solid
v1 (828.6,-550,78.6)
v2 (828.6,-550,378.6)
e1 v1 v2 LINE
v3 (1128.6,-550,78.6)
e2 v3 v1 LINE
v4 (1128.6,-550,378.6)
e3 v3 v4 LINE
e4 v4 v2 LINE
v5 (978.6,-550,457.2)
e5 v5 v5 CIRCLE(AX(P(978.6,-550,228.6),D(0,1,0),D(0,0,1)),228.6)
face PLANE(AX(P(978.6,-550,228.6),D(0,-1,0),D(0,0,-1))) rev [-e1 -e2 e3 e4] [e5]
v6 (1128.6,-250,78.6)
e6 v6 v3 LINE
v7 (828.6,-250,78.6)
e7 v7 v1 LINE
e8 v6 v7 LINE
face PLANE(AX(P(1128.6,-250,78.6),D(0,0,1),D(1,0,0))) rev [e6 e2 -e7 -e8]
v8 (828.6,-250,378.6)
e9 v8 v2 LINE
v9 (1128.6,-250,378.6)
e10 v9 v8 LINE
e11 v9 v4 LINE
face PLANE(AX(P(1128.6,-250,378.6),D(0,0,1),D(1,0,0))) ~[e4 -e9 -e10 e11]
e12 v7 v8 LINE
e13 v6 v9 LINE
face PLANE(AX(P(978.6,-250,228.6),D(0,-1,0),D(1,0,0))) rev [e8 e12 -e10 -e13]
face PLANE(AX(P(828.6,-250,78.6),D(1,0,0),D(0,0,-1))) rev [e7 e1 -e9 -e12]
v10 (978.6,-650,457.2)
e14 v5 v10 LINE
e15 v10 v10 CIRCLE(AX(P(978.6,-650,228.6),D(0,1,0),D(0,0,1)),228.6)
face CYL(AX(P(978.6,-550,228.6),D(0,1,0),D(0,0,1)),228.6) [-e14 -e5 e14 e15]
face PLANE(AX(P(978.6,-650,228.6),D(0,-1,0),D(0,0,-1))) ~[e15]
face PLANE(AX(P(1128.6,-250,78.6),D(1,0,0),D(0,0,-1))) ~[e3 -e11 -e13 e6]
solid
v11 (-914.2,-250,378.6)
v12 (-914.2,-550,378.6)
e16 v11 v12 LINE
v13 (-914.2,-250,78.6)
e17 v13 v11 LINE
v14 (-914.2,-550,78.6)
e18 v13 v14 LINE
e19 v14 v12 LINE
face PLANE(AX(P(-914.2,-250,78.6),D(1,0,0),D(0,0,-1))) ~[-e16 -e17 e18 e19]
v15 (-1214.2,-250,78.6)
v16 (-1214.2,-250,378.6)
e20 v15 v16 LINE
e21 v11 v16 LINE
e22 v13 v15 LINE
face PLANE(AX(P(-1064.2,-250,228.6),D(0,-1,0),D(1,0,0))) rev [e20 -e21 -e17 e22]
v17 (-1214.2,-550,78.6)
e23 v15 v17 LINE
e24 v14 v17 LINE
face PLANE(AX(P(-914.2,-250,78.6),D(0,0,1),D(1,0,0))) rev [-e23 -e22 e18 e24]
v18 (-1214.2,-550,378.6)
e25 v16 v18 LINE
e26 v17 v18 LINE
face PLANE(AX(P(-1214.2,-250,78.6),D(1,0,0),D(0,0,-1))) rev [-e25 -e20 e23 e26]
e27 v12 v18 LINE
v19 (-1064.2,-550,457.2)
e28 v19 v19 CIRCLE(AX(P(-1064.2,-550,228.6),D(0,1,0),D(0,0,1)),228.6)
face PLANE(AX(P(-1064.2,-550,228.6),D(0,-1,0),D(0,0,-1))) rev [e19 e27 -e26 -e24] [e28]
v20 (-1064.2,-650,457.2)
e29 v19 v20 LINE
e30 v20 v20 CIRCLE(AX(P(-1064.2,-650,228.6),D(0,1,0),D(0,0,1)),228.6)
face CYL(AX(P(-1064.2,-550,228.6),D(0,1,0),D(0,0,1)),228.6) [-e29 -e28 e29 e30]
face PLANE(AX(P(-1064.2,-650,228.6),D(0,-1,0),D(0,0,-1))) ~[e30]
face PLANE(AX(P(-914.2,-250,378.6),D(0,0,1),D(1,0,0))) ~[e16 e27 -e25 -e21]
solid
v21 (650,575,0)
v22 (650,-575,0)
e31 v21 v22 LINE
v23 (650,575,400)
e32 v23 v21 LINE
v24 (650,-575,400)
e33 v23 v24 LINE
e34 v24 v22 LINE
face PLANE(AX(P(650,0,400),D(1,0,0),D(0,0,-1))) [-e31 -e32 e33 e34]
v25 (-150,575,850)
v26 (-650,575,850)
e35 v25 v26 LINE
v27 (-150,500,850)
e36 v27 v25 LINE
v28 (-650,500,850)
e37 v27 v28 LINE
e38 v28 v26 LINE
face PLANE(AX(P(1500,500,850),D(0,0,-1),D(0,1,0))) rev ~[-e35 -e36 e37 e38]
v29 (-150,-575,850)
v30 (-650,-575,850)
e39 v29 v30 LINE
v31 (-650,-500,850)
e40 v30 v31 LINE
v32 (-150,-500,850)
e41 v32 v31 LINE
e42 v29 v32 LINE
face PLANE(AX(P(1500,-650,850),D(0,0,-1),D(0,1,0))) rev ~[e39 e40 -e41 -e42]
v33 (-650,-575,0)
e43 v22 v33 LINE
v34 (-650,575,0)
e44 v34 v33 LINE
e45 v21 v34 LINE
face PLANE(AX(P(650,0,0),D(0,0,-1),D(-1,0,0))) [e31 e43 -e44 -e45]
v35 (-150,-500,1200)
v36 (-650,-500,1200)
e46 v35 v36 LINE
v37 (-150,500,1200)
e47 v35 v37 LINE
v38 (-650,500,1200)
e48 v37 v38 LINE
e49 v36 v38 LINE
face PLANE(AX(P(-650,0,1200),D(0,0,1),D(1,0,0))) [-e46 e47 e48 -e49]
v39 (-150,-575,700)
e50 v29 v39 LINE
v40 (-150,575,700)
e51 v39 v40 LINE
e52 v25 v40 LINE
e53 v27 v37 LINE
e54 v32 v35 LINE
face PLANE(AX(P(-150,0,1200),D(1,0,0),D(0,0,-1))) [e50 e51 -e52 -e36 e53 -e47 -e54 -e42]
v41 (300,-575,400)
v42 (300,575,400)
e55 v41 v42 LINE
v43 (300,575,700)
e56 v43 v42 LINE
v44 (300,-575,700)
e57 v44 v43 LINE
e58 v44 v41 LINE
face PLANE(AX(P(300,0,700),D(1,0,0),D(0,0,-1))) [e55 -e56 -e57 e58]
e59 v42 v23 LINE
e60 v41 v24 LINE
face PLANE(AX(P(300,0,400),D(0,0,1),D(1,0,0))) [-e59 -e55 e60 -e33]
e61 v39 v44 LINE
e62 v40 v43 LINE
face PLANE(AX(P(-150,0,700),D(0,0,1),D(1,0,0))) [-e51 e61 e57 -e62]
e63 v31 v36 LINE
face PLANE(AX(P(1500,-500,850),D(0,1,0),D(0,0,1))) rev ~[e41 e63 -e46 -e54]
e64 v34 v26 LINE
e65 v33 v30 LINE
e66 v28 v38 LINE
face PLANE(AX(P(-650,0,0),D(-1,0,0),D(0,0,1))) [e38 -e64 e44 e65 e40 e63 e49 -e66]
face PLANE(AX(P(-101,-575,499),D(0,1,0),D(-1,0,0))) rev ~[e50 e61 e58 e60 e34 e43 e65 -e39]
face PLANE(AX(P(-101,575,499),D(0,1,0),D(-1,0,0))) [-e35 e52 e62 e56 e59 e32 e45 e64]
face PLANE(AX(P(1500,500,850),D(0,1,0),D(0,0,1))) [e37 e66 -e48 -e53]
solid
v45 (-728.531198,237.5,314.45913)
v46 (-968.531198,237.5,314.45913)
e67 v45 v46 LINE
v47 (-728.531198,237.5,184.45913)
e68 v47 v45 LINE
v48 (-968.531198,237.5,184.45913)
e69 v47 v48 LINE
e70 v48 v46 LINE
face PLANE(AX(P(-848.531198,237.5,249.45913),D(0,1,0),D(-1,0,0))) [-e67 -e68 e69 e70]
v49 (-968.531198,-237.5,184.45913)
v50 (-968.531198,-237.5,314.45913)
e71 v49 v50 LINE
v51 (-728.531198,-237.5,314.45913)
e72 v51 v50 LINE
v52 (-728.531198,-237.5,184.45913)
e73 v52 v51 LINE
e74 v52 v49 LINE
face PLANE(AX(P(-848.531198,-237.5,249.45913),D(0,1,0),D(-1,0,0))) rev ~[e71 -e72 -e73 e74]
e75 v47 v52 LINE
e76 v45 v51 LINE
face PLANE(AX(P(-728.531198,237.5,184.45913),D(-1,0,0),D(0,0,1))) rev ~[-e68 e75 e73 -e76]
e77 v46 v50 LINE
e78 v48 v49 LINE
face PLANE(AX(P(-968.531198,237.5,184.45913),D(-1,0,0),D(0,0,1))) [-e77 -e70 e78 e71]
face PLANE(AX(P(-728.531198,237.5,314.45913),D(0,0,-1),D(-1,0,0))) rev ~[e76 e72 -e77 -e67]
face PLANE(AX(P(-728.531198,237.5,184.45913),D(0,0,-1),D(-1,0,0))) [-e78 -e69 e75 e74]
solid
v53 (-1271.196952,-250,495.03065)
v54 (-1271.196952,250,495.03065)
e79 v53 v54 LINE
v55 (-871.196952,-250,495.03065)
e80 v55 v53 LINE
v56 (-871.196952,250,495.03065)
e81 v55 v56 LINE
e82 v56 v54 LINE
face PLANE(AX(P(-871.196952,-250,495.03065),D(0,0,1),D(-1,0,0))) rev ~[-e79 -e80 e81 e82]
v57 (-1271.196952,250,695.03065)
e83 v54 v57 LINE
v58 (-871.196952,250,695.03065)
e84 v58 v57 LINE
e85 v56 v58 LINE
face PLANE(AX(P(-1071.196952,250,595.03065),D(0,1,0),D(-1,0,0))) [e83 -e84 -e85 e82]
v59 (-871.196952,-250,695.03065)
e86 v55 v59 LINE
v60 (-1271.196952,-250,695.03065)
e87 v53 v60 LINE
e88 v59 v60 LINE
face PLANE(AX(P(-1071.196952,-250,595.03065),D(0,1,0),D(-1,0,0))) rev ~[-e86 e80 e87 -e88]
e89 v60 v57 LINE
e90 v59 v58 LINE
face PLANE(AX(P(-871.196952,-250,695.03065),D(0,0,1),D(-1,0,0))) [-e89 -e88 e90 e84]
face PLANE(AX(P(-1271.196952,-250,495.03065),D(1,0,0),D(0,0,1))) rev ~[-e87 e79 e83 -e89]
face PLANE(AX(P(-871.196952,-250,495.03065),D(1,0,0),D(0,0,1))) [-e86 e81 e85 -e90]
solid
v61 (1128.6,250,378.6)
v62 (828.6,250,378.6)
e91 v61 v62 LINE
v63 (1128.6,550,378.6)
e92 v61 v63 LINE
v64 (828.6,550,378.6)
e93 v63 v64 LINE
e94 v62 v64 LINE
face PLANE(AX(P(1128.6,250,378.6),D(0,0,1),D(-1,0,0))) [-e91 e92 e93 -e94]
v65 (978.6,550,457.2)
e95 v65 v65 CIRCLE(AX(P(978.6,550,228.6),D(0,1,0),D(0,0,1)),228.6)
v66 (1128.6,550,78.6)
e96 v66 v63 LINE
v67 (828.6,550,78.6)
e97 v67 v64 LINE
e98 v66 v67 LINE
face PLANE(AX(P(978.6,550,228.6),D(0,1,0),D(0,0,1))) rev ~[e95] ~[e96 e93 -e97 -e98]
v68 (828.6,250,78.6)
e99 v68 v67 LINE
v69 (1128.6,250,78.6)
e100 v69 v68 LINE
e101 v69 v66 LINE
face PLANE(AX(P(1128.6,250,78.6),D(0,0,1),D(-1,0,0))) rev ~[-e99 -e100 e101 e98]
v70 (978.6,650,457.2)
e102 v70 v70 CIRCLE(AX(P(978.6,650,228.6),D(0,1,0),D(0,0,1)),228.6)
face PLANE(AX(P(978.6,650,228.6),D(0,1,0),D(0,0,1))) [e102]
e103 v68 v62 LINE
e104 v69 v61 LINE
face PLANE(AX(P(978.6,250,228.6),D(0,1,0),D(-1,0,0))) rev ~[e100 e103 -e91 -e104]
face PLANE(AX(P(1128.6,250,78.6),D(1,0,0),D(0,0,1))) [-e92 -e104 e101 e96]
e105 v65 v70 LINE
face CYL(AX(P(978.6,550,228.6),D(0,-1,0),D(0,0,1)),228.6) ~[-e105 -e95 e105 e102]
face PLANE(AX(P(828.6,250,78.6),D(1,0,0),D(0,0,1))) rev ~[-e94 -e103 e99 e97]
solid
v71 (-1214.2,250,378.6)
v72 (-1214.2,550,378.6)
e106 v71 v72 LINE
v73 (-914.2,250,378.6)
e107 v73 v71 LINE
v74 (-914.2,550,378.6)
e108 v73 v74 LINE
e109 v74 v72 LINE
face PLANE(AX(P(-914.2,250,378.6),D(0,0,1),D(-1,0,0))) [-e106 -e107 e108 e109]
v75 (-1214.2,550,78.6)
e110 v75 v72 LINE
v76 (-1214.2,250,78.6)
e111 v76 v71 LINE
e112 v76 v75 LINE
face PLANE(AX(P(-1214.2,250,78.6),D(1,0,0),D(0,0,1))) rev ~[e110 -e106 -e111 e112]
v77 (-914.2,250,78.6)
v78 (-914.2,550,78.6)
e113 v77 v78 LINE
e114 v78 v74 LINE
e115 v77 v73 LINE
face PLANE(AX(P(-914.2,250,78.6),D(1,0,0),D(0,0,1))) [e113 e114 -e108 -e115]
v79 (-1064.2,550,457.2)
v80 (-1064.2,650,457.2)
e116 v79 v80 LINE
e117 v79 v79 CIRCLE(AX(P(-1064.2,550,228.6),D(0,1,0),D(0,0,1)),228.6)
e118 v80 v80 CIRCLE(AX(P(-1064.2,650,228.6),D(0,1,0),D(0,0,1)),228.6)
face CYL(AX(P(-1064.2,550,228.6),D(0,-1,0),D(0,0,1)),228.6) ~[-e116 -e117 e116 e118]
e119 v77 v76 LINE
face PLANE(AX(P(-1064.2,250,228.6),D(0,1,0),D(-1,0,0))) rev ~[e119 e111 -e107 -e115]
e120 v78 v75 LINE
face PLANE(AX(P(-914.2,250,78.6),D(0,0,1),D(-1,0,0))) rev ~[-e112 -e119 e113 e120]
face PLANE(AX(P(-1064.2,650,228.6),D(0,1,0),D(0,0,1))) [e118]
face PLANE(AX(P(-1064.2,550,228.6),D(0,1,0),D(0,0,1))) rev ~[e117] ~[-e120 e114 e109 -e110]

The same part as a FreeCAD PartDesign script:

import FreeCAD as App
import Part
import Sketcher
from FreeCAD import Vector

doc = App.newDocument("Part")
body = doc.addObject("PartDesign::Body", "Body")

# Sketch on XZ plane
sketch1 = body.newObject("Sketcher::SketchObject", "Sketch")
sketch1.AttachmentSupport = (doc.getObject("XZ_Plane"), [""])
sketch1.MapMode = "FlatFace"
sketch1.AttachmentOffset = App.Placement(Vector(0, 0, -550), App.Rotation())
sketch1.addGeometry(Part.Circle(Vector(979, 229, 0), Vector(0, 0, 1), 229), False)
sketch1.addConstraint([
    Sketcher.Constraint("Diameter", 0, 457.2),
    Sketcher.Constraint("DistanceX", -1, 1, 0, 3, 978.6),
    Sketcher.Constraint("DistanceY", -1, 1, 0, 3, 228.6),
])
pad1 = body.newObject("PartDesign::Pad", "Pad")
pad1.Profile = sketch1
pad1.Length = 100
pad1.Reversed = True

# Sketch on XZ plane
sketch2 = body.newObject("Sketcher::SketchObject", "Sketch001")
sketch2.AttachmentSupport = (doc.getObject("XZ_Plane"), [""])
sketch2.MapMode = "FlatFace"
sketch2.AttachmentOffset = App.Placement(Vector(0, 0, -250), App.Rotation())
sketch2.addGeometry([
    Part.LineSegment(Vector(1129, 379, 0), Vector(1129, 79, 0)),
    Part.LineSegment(Vector(1129, 79, 0), Vector(829, 79, 0)),
    Part.LineSegment(Vector(829, 79, 0), Vector(829, 379, 0)),
    Part.LineSegment(Vector(829, 379, 0), Vector(1129, 379, 0)),
], False)
sketch2.addConstraint([
    Sketcher.Constraint("Coincident", 0, 2, 1, 1),
    Sketcher.Constraint("Coincident", 1, 2, 2, 1),
    Sketcher.Constraint("Coincident", 2, 2, 3, 1),
    Sketcher.Constraint("Coincident", 3, 2, 0, 1),
    Sketcher.Constraint("Vertical", 0),
    Sketcher.Constraint("Horizontal", 1),
    Sketcher.Constraint("Vertical", 2),
    Sketcher.Constraint("Horizontal", 3),
    Sketcher.Constraint("Equal", 3, 0),
    Sketcher.Constraint("DistanceX", 1, 2, 1, 1, 300.0),
    Sketcher.Constraint("DistanceX", -1, 1, 0, 2, 1128.6),
    Sketcher.Constraint("DistanceY", -1, 1, 0, 2, 78.6),
])
pad2 = body.newObject("PartDesign::Pad", "Pad001")
pad2.Profile = sketch2
pad2.Length = 300
pad2.Reversed = True
body2 = doc.addObject("PartDesign::Body", "Body001")

# Sketch on XZ plane
sketch3 = body2.newObject("Sketcher::SketchObject", "Sketch002")
sketch3.AttachmentSupport = (doc.getObject("XZ_Plane001"), [""])
sketch3.MapMode = "FlatFace"
sketch3.AttachmentOffset = App.Placement(Vector(0, 0, -237.5), App.Rotation())
sketch3.addGeometry([
    Part.LineSegment(Vector(-729, 314, 0), Vector(-729, 184, 0)),
    Part.LineSegment(Vector(-729, 184, 0), Vector(-969, 184, 0)),
    Part.LineSegment(Vector(-969, 184, 0), Vector(-969, 314, 0)),
    Part.LineSegment(Vector(-969, 314, 0), Vector(-729, 314, 0)),
], False)
sketch3.addConstraint([
    Sketcher.Constraint("Coincident", 0, 2, 1, 1),
    Sketcher.Constraint("Coincident", 1, 2, 2, 1),
    Sketcher.Constraint("Coincident", 2, 2, 3, 1),
    Sketcher.Constraint("Coincident", 3, 2, 0, 1),
    Sketcher.Constraint("Vertical", 0),
    Sketcher.Constraint("Horizontal", 1),
    Sketcher.Constraint("Vertical", 2),
    Sketcher.Constraint("Horizontal", 3),
    Sketcher.Constraint("DistanceX", 1, 2, 1, 1, 240.0),
    Sketcher.Constraint("DistanceY", 0, 2, 0, 1, 130.0),
    Sketcher.Constraint("DistanceX", 0, 2, -1, 1, 728.531198),
    Sketcher.Constraint("DistanceY", -1, 1, 0, 2, 184.45913),
])
pad3 = body2.newObject("PartDesign::Pad", "Pad002")
pad3.Profile = sketch3
pad3.Length = 475
body3 = doc.addObject("PartDesign::Body", "Body002")

# Sketch on XZ plane
sketch4 = body3.newObject("Sketcher::SketchObject", "Sketch003")
sketch4.AttachmentSupport = (doc.getObject("XZ_Plane002"), [""])
sketch4.MapMode = "FlatFace"
sketch4.addGeometry([
    Part.LineSegment(Vector(-650, 0, 0), Vector(-650, 1200, 0)),  # 0
    Part.LineSegment(Vector(-650, 1200, 0), Vector(-150, 1200, 0)),  # 1
    Part.LineSegment(Vector(-150, 1200, 0), Vector(-150, 700, 0)),  # 2
    Part.LineSegment(Vector(-150, 700, 0), Vector(300, 700, 0)),  # 3
    Part.LineSegment(Vector(300, 700, 0), Vector(300, 400, 0)),  # 4
    Part.LineSegment(Vector(300, 400, 0), Vector(650, 400, 0)),  # 5
    Part.LineSegment(Vector(650, 400, 0), Vector(650, 0, 0)),  # 6
    Part.LineSegment(Vector(650, 0, 0), Vector(-650, 0, 0)),  # 7
], False)
sketch4.addConstraint([
    Sketcher.Constraint("Coincident", 0, 2, 1, 1),
    Sketcher.Constraint("Coincident", 1, 2, 2, 1),
    Sketcher.Constraint("Coincident", 2, 2, 3, 1),
    Sketcher.Constraint("Coincident", 3, 2, 4, 1),
    Sketcher.Constraint("Coincident", 4, 2, 5, 1),
    Sketcher.Constraint("Coincident", 5, 2, 6, 1),
    Sketcher.Constraint("Coincident", 6, 2, 7, 1),
    Sketcher.Constraint("Coincident", 7, 2, 0, 1),
    Sketcher.Constraint("Vertical", 0),
    Sketcher.Constraint("Horizontal", 1),
    Sketcher.Constraint("Vertical", 2),
    Sketcher.Constraint("Horizontal", 3),
    Sketcher.Constraint("Vertical", 4),
    Sketcher.Constraint("Horizontal", 5),
    Sketcher.Constraint("Vertical", 6),
    Sketcher.Constraint("Horizontal", 7),
    Sketcher.Constraint("Symmetric", 6, 2, 7, 2, -1, 1),
    Sketcher.Constraint("Equal", 1, 2),
    Sketcher.Constraint("DistanceX", 1, 1, 1, 2, 500.0),
    Sketcher.Constraint("DistanceX", 3, 1, 3, 2, 450.0),
    Sketcher.Constraint("DistanceX", 5, 1, 5, 2, 350.0),
    Sketcher.Constraint("DistanceY", 0, 1, 0, 2, 1200.0),
    Sketcher.Constraint("DistanceY", 4, 2, 4, 1, 300.0),
])
pad4 = body3.newObject("PartDesign::Pad", "Pad003")
pad4.Profile = sketch4
pad4.Length = 1150
pad4.Midplane = True

# Sketch on YZ plane
sketch5 = body3.newObject("Sketcher::SketchObject", "Sketch004")
sketch5.AttachmentSupport = (doc.getObject("YZ_Plane002"), [""])
sketch5.MapMode = "FlatFace"
sketch5.AttachmentOffset = App.Placement(Vector(0, 0, 1500), App.Rotation())
sketch5.addGeometry([
    Part.LineSegment(Vector(-650, 1200, 0), Vector(-650, 850, 0)),  # 0
    Part.LineSegment(Vector(-650, 850, 0), Vector(-500, 850, 0)),  # 1
    Part.LineSegment(Vector(-500, 850, 0), Vector(-500, 1200, 0)),  # 2
    Part.LineSegment(Vector(-500, 1200, 0), Vector(-650, 1200, 0)),  # 3
    Part.LineSegment(Vector(500, 1200, 0), Vector(500, 850, 0)),  # 4
    Part.LineSegment(Vector(500, 850, 0), Vector(650, 850, 0)),  # 5
    Part.LineSegment(Vector(650, 850, 0), Vector(650, 1200, 0)),  # 6
    Part.LineSegment(Vector(650, 1200, 0), Vector(500, 1200, 0)),  # 7
], False)
sketch5.addConstraint([
    Sketcher.Constraint("Coincident", 0, 2, 1, 1),
    Sketcher.Constraint("Coincident", 1, 2, 2, 1),
    Sketcher.Constraint("Coincident", 2, 2, 3, 1),
    Sketcher.Constraint("Coincident", 3, 2, 0, 1),
    Sketcher.Constraint("Coincident", 4, 2, 5, 1),
    Sketcher.Constraint("Coincident", 5, 2, 6, 1),
    Sketcher.Constraint("Coincident", 6, 2, 7, 1),
    Sketcher.Constraint("Coincident", 7, 2, 4, 1),
    Sketcher.Constraint("Vertical", 0),
    Sketcher.Constraint("Horizontal", 1),
    Sketcher.Constraint("Vertical", 2),
    Sketcher.Constraint("Horizontal", 3),
    Sketcher.Constraint("Vertical", 4),
    Sketcher.Constraint("Horizontal", 5),
    Sketcher.Constraint("Vertical", 6),
    Sketcher.Constraint("Horizontal", 7),
    Sketcher.Constraint("Symmetric", 1, 2, 4, 2, -2),
    Sketcher.Constraint("Symmetric", 3, 2, 6, 2, -2),
    Sketcher.Constraint("DistanceX", 1, 1, 1, 2, 150.0),
    Sketcher.Constraint("DistanceY", 0, 2, 0, 1, 350.0),
    Sketcher.Constraint("DistanceX", 0, 2, -1, 1, 650.0),
    Sketcher.Constraint("DistanceY", -1, 1, 0, 2, 850.0),
])
pocket1 = body3.newObject("PartDesign::Pocket", "Pocket")
pocket1.Profile = sketch5
pocket1.Length = 2150
body4 = doc.addObject("PartDesign::Body", "Body003")

# Sketch on XZ plane
sketch6 = body4.newObject("Sketcher::SketchObject", "Sketch005")
sketch6.AttachmentSupport = (doc.getObject("XZ_Plane003"), [""])
sketch6.MapMode = "FlatFace"
sketch6.AttachmentOffset = App.Placement(Vector(0, 0, -250), App.Rotation())
sketch6.addGeometry([
    Part.LineSegment(Vector(-914, 379, 0), Vector(-914, 79, 0)),
    Part.LineSegment(Vector(-914, 79, 0), Vector(-1214, 79, 0)),
    Part.LineSegment(Vector(-1214, 79, 0), Vector(-1214, 379, 0)),
    Part.LineSegment(Vector(-1214, 379, 0), Vector(-914, 379, 0)),
], False)
sketch6.addConstraint([
    Sketcher.Constraint("Coincident", 0, 2, 1, 1),
    Sketcher.Constraint("Coincident", 1, 2, 2, 1),
    Sketcher.Constraint("Coincident", 2, 2, 3, 1),
    Sketcher.Constraint("Coincident", 3, 2, 0, 1),
    Sketcher.Constraint("Vertical", 0),
    Sketcher.Constraint("Horizontal", 1),
    Sketcher.Constraint("Vertical", 2),
    Sketcher.Constraint("Horizontal", 3),
    Sketcher.Constraint("Equal", 3, 0),
    Sketcher.Constraint("DistanceX", 1, 2, 1, 1, 300.0),
    Sketcher.Constraint("DistanceX", 0, 2, -1, 1, 914.2),
    Sketcher.Constraint("DistanceY", -1, 1, 0, 2, 78.6),
])
pad5 = body4.newObject("PartDesign::Pad", "Pad004")
pad5.Profile = sketch6
pad5.Length = 300
pad5.Reversed = True

# Sketch on XZ plane
sketch7 = body4.newObject("Sketcher::SketchObject", "Sketch006")
sketch7.AttachmentSupport = (doc.getObject("XZ_Plane003"), [""])
sketch7.MapMode = "FlatFace"
sketch7.AttachmentOffset = App.Placement(Vector(0, 0, -550), App.Rotation())
sketch7.addGeometry(Part.Circle(Vector(-1064, 229, 0), Vector(0, 0, 1), 229), False)
sketch7.addConstraint([
    Sketcher.Constraint("Diameter", 0, 457.2),
    Sketcher.Constraint("DistanceX", 0, 3, -1, 1, 1064.2),
    Sketcher.Constraint("DistanceY", -1, 1, 0, 3, 228.6),
])
pad6 = body4.newObject("PartDesign::Pad", "Pad005")
pad6.Profile = sketch7
pad6.Length = 100
pad6.Reversed = True
body5 = doc.addObject("PartDesign::Body", "Body004")

# Sketch on XZ plane
sketch8 = body5.newObject("Sketcher::SketchObject", "Sketch007")
sketch8.AttachmentSupport = (doc.getObject("XZ_Plane004"), [""])
sketch8.MapMode = "FlatFace"
sketch8.AttachmentOffset = App.Placement(Vector(0, 0, 250), App.Rotation())
sketch8.addGeometry([
    Part.LineSegment(Vector(-871, 695, 0), Vector(-871, 495, 0)),
    Part.LineSegment(Vector(-871, 495, 0), Vector(-1271, 495, 0)),
    Part.LineSegment(Vector(-1271, 495, 0), Vector(-1271, 695, 0)),
    Part.LineSegment(Vector(-1271, 695, 0), Vector(-871, 695, 0)),
], False)
sketch8.addConstraint([
    Sketcher.Constraint("Coincident", 0, 2, 1, 1),
    Sketcher.Constraint("Coincident", 1, 2, 2, 1),
    Sketcher.Constraint("Coincident", 2, 2, 3, 1),
    Sketcher.Constraint("Coincident", 3, 2, 0, 1),
    Sketcher.Constraint("Vertical", 0),
    Sketcher.Constraint("Horizontal", 1),
    Sketcher.Constraint("Vertical", 2),
    Sketcher.Constraint("Horizontal", 3),
    Sketcher.Constraint("DistanceX", 1, 2, 1, 1, 400.0),
    Sketcher.Constraint("DistanceY", 0, 2, 0, 1, 200.0),
    Sketcher.Constraint("DistanceX", 0, 2, -1, 1, 871.196952),
    Sketcher.Constraint("DistanceY", -1, 1, 0, 2, 495.03065),
])
pad7 = body5.newObject("PartDesign::Pad", "Pad006")
pad7.Profile = sketch8
pad7.Length = 500
pad7.Reversed = True
body6 = doc.addObject("PartDesign::Body", "Body005")
doc.recompute()

mirroring = doc.addObject("Part::Mirroring", "Mirroring")
mirroring.Source = body
mirroring.Base = Vector(0, 0, 0)
mirroring.Normal = Vector(0, 1, 0)
body6.BaseFeature = mirroring
doc.recompute()
body7 = doc.addObject("PartDesign::Body", "Body006")
doc.recompute()

mirroring2 = doc.addObject("Part::Mirroring", "Mirroring001")
mirroring2.Source = body4
mirroring2.Base = Vector(0, 0, 0)
mirroring2.Normal = Vector(0, 1, 0)
body7.BaseFeature = mirroring2
doc.recompute()
mirroring.Visibility = False
mirroring2.Visibility = False

doc.recompute()
